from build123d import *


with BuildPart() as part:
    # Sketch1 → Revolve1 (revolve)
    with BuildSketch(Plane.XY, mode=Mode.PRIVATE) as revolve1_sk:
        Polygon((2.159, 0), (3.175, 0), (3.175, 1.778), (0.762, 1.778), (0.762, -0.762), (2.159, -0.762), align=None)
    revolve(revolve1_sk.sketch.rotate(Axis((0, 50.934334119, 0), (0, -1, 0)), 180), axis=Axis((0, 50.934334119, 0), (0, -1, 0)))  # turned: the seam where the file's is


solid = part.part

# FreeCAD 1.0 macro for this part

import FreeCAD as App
import Part
import Sketcher
from FreeCAD import Vector
Q = App.Units.Quantity


def add_polygon(sketch, points):
    """Adds a closed chain of lines whose ends are joined by coincident constraints."""
    first, n = sketch.GeometryCount, len(points)
    for a, b in zip(points, points[1:] + points[:1]):
        sketch.addGeometry(Part.LineSegment(App.Vector(*a, 0), App.Vector(*b, 0)), False)
    for i in range(n):
        sketch.addConstraint(Sketcher.Constraint("Coincident", first + i, 2, first + (i + 1) % n, 1))

doc = App.newDocument("Part")
body = doc.addObject("PartDesign::Body", "Body")

# Sketch on XY plane
sketch1 = body.newObject("Sketcher::SketchObject", "Sketch")
sketch1.AttachmentSupport = (doc.getObject("XY_Plane"), [""])
sketch1.MapMode = "FlatFace"
add_polygon(sketch1, [(2.2, 0), (3.2, 0), (3.2, 1.8), (0.8, 1.8), (0.8, -0.8), (2.2, -0.8)])  # lines 0-5
sketch1.addConstraint([
    Sketcher.Constraint("Horizontal", 0),
    Sketcher.Constraint("Vertical", 1),
    Sketcher.Constraint("Horizontal", 2),
    Sketcher.Constraint("Vertical", 3),
    Sketcher.Constraint("Horizontal", 4),
    Sketcher.Constraint("Vertical", 5),
    Sketcher.Constraint("PointOnObject", 0, 2, -1),
    Sketcher.Constraint("DistanceY", 3, 2, 3, 1, Q("0.1 in")),
    Sketcher.Constraint("DistanceX", 0, 1, 0, 2, Q("0.04 in")),
    Sketcher.Constraint("DistanceY", 1, 1, 1, 2, Q("0.07 in")),
    Sketcher.Constraint("DistanceX", 2, 2, 2, 1, Q("0.095 in")),
    Sketcher.Constraint("DistanceX", -1, 1, 2, 2, Q("0.03 in")),
])
revolution = body.newObject("PartDesign::Revolution", "Revolution")
revolution.Profile = sketch1
revolution.ReferenceAxis = (sketch1, ["V_Axis"])
revolution.Angle = 360

doc.recompute()
